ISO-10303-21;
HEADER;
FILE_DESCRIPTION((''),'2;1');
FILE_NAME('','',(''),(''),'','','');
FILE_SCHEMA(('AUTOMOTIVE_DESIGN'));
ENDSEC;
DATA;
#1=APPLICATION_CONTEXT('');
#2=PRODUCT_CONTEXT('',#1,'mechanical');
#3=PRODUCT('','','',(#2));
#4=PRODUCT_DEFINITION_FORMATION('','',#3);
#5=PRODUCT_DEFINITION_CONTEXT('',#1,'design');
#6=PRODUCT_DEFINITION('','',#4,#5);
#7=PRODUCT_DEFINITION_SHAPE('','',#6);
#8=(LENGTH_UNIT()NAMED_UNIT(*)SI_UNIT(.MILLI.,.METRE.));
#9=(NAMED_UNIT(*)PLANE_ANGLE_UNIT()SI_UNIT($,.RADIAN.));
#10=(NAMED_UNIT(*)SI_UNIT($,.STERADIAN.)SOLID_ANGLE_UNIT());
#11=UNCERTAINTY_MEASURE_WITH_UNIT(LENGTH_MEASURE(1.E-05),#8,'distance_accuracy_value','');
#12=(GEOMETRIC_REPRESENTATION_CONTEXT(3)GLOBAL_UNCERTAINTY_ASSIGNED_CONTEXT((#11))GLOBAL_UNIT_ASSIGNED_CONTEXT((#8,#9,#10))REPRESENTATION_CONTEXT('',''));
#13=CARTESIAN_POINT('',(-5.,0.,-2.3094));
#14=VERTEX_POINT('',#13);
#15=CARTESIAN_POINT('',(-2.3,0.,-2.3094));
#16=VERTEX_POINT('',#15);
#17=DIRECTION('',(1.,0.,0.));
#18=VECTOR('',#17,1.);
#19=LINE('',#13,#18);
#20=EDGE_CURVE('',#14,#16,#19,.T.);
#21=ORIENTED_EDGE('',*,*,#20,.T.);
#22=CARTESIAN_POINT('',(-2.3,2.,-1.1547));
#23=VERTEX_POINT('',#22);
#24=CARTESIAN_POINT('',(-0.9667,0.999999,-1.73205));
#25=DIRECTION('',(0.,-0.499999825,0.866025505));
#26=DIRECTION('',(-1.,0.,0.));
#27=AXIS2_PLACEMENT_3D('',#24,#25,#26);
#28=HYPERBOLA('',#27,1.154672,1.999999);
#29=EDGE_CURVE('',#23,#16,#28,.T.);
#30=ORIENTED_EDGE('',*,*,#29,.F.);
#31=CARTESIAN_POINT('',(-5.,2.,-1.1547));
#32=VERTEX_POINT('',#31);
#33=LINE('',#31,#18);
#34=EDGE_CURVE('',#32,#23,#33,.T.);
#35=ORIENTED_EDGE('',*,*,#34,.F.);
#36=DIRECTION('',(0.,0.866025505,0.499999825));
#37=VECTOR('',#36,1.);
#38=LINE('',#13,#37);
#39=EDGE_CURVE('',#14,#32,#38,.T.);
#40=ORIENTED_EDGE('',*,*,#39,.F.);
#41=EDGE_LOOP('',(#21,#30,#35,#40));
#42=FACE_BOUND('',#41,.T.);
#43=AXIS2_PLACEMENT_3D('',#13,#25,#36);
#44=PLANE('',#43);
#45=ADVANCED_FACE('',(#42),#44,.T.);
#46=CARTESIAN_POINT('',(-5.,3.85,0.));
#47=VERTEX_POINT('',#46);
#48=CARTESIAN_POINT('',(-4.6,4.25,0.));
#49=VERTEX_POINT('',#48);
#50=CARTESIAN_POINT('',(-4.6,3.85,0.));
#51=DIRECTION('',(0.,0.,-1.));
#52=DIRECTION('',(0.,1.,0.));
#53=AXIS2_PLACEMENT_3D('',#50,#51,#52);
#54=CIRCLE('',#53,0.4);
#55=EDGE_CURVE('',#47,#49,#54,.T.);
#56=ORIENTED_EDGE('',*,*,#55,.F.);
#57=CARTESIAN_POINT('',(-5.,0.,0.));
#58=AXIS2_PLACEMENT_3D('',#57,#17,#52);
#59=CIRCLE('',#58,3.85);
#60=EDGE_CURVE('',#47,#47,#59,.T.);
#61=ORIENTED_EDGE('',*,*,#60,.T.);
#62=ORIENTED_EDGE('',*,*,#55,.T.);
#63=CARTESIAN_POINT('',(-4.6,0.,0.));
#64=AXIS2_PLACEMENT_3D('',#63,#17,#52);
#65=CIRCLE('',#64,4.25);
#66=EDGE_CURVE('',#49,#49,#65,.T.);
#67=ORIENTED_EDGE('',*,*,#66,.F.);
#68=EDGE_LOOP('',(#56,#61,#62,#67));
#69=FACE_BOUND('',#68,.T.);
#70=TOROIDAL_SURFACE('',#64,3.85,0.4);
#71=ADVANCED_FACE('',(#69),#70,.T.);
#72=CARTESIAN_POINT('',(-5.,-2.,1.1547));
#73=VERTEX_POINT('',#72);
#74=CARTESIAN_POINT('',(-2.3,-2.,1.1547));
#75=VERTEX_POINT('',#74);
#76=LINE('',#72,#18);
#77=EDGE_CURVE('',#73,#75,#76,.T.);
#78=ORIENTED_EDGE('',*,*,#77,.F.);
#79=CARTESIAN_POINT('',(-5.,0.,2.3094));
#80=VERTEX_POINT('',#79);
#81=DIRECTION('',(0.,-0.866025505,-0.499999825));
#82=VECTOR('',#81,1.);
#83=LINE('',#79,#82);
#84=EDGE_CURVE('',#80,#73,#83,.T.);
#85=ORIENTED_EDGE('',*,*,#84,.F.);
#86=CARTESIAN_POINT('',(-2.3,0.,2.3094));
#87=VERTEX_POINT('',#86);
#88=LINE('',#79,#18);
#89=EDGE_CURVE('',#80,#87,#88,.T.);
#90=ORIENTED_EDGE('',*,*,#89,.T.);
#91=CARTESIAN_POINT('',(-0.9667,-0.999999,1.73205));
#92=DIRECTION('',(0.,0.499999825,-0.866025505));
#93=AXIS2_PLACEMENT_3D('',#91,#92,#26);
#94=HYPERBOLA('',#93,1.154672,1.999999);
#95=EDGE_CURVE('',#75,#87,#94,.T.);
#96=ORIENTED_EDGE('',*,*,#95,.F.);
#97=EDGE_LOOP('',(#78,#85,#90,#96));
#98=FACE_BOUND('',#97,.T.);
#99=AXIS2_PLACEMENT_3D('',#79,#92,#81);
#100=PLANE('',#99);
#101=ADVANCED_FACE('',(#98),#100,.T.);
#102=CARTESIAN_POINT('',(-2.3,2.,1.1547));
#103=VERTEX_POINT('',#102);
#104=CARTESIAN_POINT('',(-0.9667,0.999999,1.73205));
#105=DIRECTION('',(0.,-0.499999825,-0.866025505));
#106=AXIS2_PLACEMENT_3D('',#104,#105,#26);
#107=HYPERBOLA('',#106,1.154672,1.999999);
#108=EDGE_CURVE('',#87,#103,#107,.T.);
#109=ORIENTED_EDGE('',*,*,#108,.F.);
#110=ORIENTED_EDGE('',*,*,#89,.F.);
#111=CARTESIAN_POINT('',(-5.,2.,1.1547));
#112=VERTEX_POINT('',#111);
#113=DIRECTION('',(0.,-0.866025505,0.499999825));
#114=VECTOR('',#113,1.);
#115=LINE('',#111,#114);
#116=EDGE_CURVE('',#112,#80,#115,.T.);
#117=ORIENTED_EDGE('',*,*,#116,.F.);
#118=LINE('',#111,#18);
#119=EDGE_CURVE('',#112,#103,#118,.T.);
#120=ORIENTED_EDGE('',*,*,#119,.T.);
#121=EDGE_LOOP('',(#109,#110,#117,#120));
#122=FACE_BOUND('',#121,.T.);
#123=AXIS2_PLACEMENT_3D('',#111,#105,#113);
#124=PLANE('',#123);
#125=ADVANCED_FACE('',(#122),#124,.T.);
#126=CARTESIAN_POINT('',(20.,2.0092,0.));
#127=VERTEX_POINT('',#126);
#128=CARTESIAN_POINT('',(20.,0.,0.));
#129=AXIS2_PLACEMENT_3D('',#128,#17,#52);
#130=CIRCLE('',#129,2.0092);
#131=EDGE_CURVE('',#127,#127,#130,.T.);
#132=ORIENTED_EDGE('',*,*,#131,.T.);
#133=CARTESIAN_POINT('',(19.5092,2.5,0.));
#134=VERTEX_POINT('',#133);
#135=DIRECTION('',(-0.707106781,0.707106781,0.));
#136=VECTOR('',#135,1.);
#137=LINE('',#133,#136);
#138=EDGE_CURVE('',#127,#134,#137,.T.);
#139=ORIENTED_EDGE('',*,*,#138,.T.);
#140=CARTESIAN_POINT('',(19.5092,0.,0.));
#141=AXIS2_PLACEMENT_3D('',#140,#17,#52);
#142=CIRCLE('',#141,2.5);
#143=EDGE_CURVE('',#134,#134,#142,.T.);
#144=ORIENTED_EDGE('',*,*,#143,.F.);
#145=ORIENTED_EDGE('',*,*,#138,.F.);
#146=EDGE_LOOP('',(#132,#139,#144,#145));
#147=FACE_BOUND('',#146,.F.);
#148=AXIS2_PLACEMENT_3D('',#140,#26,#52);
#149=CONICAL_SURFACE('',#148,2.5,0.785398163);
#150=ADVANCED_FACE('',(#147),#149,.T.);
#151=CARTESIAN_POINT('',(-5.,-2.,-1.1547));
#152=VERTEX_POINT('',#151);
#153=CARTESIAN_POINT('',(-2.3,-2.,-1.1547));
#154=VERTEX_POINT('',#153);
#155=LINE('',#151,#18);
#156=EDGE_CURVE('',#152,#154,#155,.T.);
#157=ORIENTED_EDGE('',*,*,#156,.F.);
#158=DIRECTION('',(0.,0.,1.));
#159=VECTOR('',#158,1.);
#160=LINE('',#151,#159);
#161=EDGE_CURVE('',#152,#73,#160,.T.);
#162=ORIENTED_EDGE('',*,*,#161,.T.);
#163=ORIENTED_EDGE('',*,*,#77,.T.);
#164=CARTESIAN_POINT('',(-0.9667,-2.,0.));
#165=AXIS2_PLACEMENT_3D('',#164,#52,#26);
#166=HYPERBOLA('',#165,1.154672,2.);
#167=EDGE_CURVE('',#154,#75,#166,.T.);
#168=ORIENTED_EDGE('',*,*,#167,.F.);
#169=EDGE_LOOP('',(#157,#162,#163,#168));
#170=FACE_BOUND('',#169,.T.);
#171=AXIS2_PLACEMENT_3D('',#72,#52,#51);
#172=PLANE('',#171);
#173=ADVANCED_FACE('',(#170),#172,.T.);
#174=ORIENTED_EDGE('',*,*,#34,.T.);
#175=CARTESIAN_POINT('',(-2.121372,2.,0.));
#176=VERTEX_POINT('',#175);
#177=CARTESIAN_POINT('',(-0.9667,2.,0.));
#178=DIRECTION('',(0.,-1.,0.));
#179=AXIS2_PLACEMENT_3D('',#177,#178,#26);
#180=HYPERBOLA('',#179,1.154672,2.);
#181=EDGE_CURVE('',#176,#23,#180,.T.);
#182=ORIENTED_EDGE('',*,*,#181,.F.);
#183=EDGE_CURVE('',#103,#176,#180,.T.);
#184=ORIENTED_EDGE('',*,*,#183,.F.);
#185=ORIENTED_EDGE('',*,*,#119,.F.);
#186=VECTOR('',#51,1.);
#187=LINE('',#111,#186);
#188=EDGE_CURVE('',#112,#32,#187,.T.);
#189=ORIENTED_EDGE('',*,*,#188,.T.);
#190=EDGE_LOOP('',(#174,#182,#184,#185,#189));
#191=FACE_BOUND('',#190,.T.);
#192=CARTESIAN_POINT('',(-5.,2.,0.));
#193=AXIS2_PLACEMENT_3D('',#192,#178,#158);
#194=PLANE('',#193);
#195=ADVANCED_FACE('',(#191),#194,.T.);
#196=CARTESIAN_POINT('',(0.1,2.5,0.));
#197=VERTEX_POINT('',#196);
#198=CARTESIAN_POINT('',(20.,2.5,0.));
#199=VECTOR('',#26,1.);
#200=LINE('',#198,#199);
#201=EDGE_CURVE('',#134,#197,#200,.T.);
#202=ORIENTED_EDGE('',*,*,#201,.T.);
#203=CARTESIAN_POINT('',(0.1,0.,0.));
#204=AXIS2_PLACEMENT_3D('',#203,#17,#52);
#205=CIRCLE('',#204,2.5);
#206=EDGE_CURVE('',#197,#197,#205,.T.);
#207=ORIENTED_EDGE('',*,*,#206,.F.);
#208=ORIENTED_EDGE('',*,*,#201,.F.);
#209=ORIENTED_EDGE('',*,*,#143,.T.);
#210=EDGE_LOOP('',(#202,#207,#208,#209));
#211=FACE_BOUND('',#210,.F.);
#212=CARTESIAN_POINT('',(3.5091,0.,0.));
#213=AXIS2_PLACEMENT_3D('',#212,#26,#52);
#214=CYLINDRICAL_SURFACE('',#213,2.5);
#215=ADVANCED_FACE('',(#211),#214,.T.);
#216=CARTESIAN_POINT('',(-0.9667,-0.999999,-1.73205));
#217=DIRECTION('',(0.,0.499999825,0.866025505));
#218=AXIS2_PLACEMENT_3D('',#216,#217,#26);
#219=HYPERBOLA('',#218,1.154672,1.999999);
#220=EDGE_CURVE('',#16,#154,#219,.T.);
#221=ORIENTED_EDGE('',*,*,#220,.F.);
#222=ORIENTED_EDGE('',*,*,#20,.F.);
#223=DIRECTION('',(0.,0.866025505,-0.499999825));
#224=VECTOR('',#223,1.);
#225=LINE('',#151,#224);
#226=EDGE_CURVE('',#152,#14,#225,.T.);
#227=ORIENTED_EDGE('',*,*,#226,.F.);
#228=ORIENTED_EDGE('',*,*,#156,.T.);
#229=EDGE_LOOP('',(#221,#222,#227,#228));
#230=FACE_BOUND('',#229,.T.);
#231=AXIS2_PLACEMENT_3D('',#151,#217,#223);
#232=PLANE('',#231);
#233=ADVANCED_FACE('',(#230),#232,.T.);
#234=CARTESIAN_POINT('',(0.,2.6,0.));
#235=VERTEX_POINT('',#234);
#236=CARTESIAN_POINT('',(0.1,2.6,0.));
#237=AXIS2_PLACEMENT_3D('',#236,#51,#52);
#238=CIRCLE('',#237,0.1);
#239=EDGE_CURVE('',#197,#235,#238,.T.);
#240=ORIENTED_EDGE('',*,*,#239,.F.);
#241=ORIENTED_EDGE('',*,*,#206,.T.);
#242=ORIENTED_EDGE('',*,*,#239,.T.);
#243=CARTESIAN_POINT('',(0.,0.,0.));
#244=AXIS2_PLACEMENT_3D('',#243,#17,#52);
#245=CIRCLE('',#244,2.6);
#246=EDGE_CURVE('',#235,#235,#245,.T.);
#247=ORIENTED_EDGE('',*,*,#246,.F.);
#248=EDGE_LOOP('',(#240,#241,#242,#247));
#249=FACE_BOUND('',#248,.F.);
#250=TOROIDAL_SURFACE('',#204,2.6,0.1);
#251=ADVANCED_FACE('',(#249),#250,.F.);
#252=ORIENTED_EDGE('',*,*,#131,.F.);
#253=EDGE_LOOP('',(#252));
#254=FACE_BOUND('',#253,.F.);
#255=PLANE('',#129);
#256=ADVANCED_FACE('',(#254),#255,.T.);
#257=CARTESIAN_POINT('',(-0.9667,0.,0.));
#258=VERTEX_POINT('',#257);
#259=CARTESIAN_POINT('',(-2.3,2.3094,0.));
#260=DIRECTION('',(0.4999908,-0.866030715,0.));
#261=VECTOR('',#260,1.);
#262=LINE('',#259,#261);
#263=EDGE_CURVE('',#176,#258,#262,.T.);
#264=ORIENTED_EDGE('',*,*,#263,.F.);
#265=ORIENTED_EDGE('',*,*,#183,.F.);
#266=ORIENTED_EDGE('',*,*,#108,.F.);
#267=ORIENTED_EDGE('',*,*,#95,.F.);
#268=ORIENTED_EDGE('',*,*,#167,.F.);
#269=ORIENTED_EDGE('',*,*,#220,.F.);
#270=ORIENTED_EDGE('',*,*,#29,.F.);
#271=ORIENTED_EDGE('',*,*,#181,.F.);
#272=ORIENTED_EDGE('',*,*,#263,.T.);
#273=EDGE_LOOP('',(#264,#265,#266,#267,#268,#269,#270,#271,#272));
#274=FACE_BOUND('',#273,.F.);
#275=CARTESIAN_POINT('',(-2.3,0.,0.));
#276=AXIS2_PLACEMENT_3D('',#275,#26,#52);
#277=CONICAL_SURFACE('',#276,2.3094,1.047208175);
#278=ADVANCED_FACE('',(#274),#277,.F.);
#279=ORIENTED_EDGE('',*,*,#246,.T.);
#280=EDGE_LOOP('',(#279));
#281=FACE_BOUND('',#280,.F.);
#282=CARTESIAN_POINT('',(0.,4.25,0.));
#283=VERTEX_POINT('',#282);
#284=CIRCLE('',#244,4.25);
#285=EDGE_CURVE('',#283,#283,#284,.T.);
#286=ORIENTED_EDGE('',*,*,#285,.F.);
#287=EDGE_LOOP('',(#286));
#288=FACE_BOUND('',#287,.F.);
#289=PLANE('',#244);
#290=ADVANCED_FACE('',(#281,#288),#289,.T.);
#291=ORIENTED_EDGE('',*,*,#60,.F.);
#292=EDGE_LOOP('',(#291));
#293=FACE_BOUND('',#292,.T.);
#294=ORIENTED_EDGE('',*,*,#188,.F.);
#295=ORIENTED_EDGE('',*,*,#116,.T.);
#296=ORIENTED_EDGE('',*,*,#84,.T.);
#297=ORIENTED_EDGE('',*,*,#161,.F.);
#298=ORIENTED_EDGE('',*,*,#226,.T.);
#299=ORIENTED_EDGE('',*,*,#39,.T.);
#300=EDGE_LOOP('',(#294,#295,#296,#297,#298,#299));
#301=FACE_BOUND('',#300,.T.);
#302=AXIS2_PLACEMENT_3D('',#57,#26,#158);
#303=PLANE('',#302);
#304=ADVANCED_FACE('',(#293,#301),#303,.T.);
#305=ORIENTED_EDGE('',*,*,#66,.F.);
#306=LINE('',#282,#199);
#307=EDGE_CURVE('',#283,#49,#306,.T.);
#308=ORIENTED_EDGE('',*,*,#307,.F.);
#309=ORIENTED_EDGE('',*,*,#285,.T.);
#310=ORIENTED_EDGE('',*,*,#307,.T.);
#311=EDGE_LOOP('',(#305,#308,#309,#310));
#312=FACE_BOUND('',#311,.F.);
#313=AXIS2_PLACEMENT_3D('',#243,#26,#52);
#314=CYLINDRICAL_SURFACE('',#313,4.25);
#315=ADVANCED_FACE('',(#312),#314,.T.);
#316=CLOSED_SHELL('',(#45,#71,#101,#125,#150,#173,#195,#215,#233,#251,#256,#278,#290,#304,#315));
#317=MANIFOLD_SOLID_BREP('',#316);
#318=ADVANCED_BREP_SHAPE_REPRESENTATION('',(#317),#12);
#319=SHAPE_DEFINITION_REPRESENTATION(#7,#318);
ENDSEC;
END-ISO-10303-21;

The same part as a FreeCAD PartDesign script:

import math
import FreeCAD as App
import Part
import Sketcher
from FreeCAD import Vector
Q = App.Units.Quantity


def edges_at(feature, points):
    """Names of the edges that pass closest to the given points."""
    edges = feature.Shape.Edges
    near = lambda p: min(range(len(edges)), key=lambda i: edges[i].distToShape(Part.Vertex(*p))[0])
    return sorted({f"Edge{near(p) + 1}" for p in points})


def add_polygon(sketch, points):
    """Adds a closed chain of lines whose ends are joined by coincident constraints."""
    first, n = sketch.GeometryCount, len(points)
    for a, b in zip(points, points[1:] + points[:1]):
        sketch.addGeometry(Part.LineSegment(App.Vector(*a, 0), App.Vector(*b, 0)), False)
    for i in range(n):
        sketch.addConstraint(Sketcher.Constraint("Coincident", first + i, 2, first + (i + 1) % n, 1))

doc = App.newDocument("Part")
body = doc.addObject("PartDesign::Body", "Body")

sketch1 = body.newObject("Sketcher::SketchObject", "Sketch")
sketch1.AttachmentSupport = (doc.getObject("XY_Plane"), [""])
sketch1.MapMode = "FlatFace"
add_polygon(sketch1, [(-2.3, 2.3), (-1, 0), (20, 0), (20, 2.5), (0, 2.5), (0, 4.2), (-5, 4.2), (-5, 2.3)])
sketch1.addConstraint([
    Sketcher.Constraint("Horizontal", 1),
    Sketcher.Constraint("Vertical", 2),
    Sketcher.Constraint("Horizontal", 3),
    Sketcher.Constraint("Vertical", 4),
    Sketcher.Constraint("Horizontal", 5),
    Sketcher.Constraint("Vertical", 6),
    Sketcher.Constraint("Horizontal", 7),
    Sketcher.Constraint("PointOnObject", 0, 2, -1),
    Sketcher.Constraint("PointOnObject", 3, 2, -2),
    Sketcher.Constraint("DistanceX", 3, 2, 3, 1, 20.0),
    Sketcher.Constraint("DistanceX", 5, 2, 5, 1, 5.0),
    Sketcher.Constraint("DistanceX", 7, 1, 7, 2, 2.7),
    Sketcher.Constraint("Angle", 0, Q("-60.0006 deg")),
    Sketcher.Constraint("DistanceY", 2, 1, 2, 2, 2.5),
    Sketcher.Constraint("DistanceY", 4, 1, 4, 2, 1.75),
    Sketcher.Constraint("DistanceX", 1, 1, 1, 2, 20.9667),
])
revolution = body.newObject("PartDesign::Revolution", "Revolution")
revolution.Profile = sketch1
revolution.ReferenceAxis = (sketch1, ["H_Axis"])
revolution.Angle = 360

sketch2 = body.newObject("Sketcher::SketchObject", "Sketch001")
sketch2.AttachmentSupport = (doc.getObject("YZ_Plane"), [""])
sketch2.MapMode = "FlatFace"
sketch2.AttachmentOffset = App.Placement(Vector(0, 0, -5), App.Rotation())
sketch2.addGeometry([
    Part.LineSegment(Vector(2, 1.2, 0), Vector(0, 2.3, 0)),
    Part.ArcOfCircle(Part.Circle(Vector(0, 0, 0), Vector(0, 0, 1), 2.3), math.radians(30), math.radians(90)),
    Part.ArcOfCircle(Part.Circle(Vector(0, 0, 0), Vector(0, 0, 1), 2.3), math.radians(90), math.radians(150)),
    Part.LineSegment(Vector(0, 2.3, 0), Vector(-2, 1.2, 0)),
    Part.ArcOfCircle(Part.Circle(Vector(0, 0, 0), Vector(0, 0, 1), 2.3), math.radians(-30), math.radians(30)),
    Part.LineSegment(Vector(2, -1.2, 0), Vector(2, 1.2, 0)),
    Part.LineSegment(Vector(-2, 1.2, 0), Vector(-2, -1.2, 0)),
    Part.ArcOfCircle(Part.Circle(Vector(0, 0, 0), Vector(0, 0, 1), 2.3), math.radians(150), math.radians(210)),
    Part.LineSegment(Vector(-2, -1.2, 0), Vector(0, -2.3, 0)),
    Part.ArcOfCircle(Part.Circle(Vector(0, 0, 0), Vector(0, 0, 1), 2.3), math.radians(-150), math.radians(-90)),
    Part.ArcOfCircle(Part.Circle(Vector(0, 0, 0), Vector(0, 0, 1), 2.3), math.radians(-90), math.radians(-30)),
    Part.LineSegment(Vector(0, -2.3, 0), Vector(2, -1.2, 0)),
], False)
sketch2.addConstraint([
    Sketcher.Constraint("Coincident", 0, 1, 1, 1),
    Sketcher.Constraint("Coincident", 1, 2, 0, 2),
    Sketcher.Constraint("Coincident", 2, 1, 3, 1),
    Sketcher.Constraint("Coincident", 3, 2, 2, 2),
    Sketcher.Constraint("Coincident", 4, 1, 5, 1),
    Sketcher.Constraint("Coincident", 5, 2, 4, 2),
    Sketcher.Constraint("Coincident", 6, 1, 7, 1),
    Sketcher.Constraint("Coincident", 7, 2, 6, 2),
    Sketcher.Constraint("Coincident", 8, 1, 9, 1),
    Sketcher.Constraint("Coincident", 9, 2, 8, 2),
    Sketcher.Constraint("Coincident", 10, 1, 11, 1),
    Sketcher.Constraint("Coincident", 11, 2, 10, 2),
    Sketcher.Constraint("Vertical", 5),
    Sketcher.Constraint("Vertical", 6),
    Sketcher.Constraint("Coincident", 1, 3, -1, 1),
    Sketcher.Constraint("Coincident", 2, 3, -1, 1),
    Sketcher.Constraint("Coincident", 4, 3, -1, 1),
    Sketcher.Constraint("Coincident", 7, 3, -1, 1),
    Sketcher.Constraint("Coincident", 9, 3, -1, 1),
    Sketcher.Constraint("Coincident", 10, 3, -1, 1),
    Sketcher.Constraint("Coincident", 2, 1, 1, 2),
    Sketcher.Constraint("Coincident", 5, 2, 0, 1),
    Sketcher.Constraint("Coincident", 6, 1, 3, 2),
    Sketcher.Constraint("Coincident", 8, 1, 7, 2),
    Sketcher.Constraint("Coincident", 10, 1, 9, 2),
    Sketcher.Constraint("PointOnObject", 1, 2, -2),
    Sketcher.Constraint("PointOnObject", 9, 2, -2),
    Sketcher.Constraint("Parallel", 0, 8),
    Sketcher.Constraint("Parallel", 3, 11),
    Sketcher.Constraint("Angle", 0, Q("150 deg")),
    Sketcher.Constraint("DistanceX", -1, 1, 0, 1, 2.0),
])
pad1 = body.newObject("PartDesign::Pad", "Pad")
pad1.Profile = sketch2
pad1.Length = 2.8786
doc.recompute()

fillet = body.newObject("PartDesign::Fillet", "Fillet")
fillet.Base = (pad1, edges_at(pad1, [(-5, -4.25, 0)]))
fillet.Radius = 0.4
doc.recompute()

chamfer = body.newObject("PartDesign::Chamfer", "Chamfer")
chamfer.Base = (fillet, edges_at(fillet, [(20, -2.5, 0)]))
chamfer.ChamferType = "Two distances"
chamfer.Size = 0.4908
chamfer.Size2 = 0.4908
doc.recompute()

fillet2 = body.newObject("PartDesign::Fillet", "Fillet001")
fillet2.Base = (chamfer, edges_at(chamfer, [(0, -2.5, 0)]))
fillet2.Radius = 0.1

doc.recompute()
